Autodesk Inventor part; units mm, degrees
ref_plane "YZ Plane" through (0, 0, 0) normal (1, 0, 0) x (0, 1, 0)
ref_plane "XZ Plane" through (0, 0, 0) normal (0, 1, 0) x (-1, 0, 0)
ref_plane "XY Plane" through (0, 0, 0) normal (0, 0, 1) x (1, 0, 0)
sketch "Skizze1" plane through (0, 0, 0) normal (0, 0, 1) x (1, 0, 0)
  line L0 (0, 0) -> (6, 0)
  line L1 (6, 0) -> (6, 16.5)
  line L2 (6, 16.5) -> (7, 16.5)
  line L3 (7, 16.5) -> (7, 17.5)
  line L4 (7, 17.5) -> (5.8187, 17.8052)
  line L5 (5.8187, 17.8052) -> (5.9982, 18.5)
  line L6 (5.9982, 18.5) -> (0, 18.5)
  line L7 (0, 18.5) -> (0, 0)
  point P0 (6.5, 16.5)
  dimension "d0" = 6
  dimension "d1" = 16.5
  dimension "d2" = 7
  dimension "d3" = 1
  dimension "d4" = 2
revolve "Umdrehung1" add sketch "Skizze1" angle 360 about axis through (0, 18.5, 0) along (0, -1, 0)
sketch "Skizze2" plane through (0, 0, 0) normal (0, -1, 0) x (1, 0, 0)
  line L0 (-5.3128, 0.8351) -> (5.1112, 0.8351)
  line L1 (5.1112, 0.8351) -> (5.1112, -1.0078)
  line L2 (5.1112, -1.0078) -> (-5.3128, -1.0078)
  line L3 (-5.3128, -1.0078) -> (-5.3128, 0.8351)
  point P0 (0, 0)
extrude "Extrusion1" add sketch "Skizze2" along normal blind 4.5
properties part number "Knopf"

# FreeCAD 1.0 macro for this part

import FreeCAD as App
import Part
import Sketcher

doc = App.newDocument("Part")
body = doc.addObject("PartDesign::Body", "Body")

sketch1 = doc.addObject("Sketcher::SketchObject", "Sketch")
body.addObject(sketch1)
sketch1.AttachmentSupport = (doc.XY_Plane, [""])
sketch1.MapMode = "FlatFace"
sketch1.addGeometry(Part.LineSegment(App.Vector(0, 18.5, 0), App.Vector(0, 0, 0)), False)
sketch1.addGeometry(Part.LineSegment(App.Vector(0, 0, 0), App.Vector(6, 0, 0)), False)
sketch1.addGeometry(Part.LineSegment(App.Vector(6, 0, 0), App.Vector(6, 16.5, 0)), False)
sketch1.addGeometry(Part.LineSegment(App.Vector(6, 16.5, 0), App.Vector(7, 16.5, 0)), False)
sketch1.addGeometry(Part.LineSegment(App.Vector(7, 16.5, 0), App.Vector(7, 17.5, 0)), False)
sketch1.addGeometry(Part.LineSegment(App.Vector(7, 17.5, 0), App.Vector(5.8187, 17.8052, 0)), False)
sketch1.addGeometry(Part.LineSegment(App.Vector(5.8187, 17.8052, 0), App.Vector(5.9982, 18.5, 0)), False)
sketch1.addGeometry(Part.LineSegment(App.Vector(5.9982, 18.5, 0), App.Vector(0, 18.5, 0)), False)
sketch1.addConstraint(Sketcher.Constraint("Coincident", 0, 2, 1, 1))
sketch1.addConstraint(Sketcher.Constraint("Coincident", 1, 2, 2, 1))
sketch1.addConstraint(Sketcher.Constraint("Coincident", 2, 2, 3, 1))
sketch1.addConstraint(Sketcher.Constraint("Coincident", 3, 2, 4, 1))
sketch1.addConstraint(Sketcher.Constraint("Coincident", 4, 2, 5, 1))
sketch1.addConstraint(Sketcher.Constraint("Coincident", 5, 2, 6, 1))
sketch1.addConstraint(Sketcher.Constraint("Coincident", 6, 2, 7, 1))
sketch1.addConstraint(Sketcher.Constraint("Coincident", 7, 2, 0, 1))
sketch1.addConstraint(Sketcher.Constraint("Vertical", 0))
sketch1.addConstraint(Sketcher.Constraint("Horizontal", 1))
sketch1.addConstraint(Sketcher.Constraint("Vertical", 2))
sketch1.addConstraint(Sketcher.Constraint("Horizontal", 3))
sketch1.addConstraint(Sketcher.Constraint("Vertical", 4))
sketch1.addConstraint(Sketcher.Constraint("Horizontal", 7))
sketch1.addConstraint(Sketcher.Constraint("Coincident", 0, 2, -1, 1))
sketch1.addConstraint(Sketcher.Constraint("Perpendicular", 5, 6))
sketch1.addConstraint(Sketcher.Constraint("Equal", 3, 4))
sketch1.addConstraint(Sketcher.Constraint("DistanceX", 1, 1, 1, 2, 6.0))
sketch1.addConstraint(Sketcher.Constraint("DistanceX", 3, 1, 3, 2, 1.0))
sketch1.addConstraint(Sketcher.Constraint("DistanceY", 2, 1, 2, 2, 16.5))
sketch1.addConstraint(Sketcher.Constraint("DistanceY", 4, 2, 6, 2, 1.0))
sketch1.addConstraint(Sketcher.Constraint("Distance", 5, 1.22))
sketch1.addConstraint(Sketcher.Constraint("DistanceX", 7, 2, 7, 1, 5.9982))
revolution = doc.addObject("PartDesign::Revolution", "Revolution")
body.addObject(revolution)
revolution.Profile = sketch1
revolution.ReferenceAxis = (sketch1, ["V_Axis"])
revolution.Angle = 360

sketch2 = doc.addObject("Sketcher::SketchObject", "Sketch001")
body.addObject(sketch2)
sketch2.AttachmentSupport = (doc.XZ_Plane, [""])
sketch2.MapMode = "FlatFace"
sketch2.addGeometry(Part.LineSegment(App.Vector(5.1112, 0.8351, 0), App.Vector(-5.3128, 0.8351, 0)), False)
sketch2.addGeometry(Part.LineSegment(App.Vector(-5.3128, 0.8351, 0), App.Vector(-5.3128, -1.0078, 0)), False)
sketch2.addGeometry(Part.LineSegment(App.Vector(-5.3128, -1.0078, 0), App.Vector(5.1112, -1.0078, 0)), False)
sketch2.addGeometry(Part.LineSegment(App.Vector(5.1112, -1.0078, 0), App.Vector(5.1112, 0.8351, 0)), False)
sketch2.addConstraint(Sketcher.Constraint("Coincident", 0, 2, 1, 1))
sketch2.addConstraint(Sketcher.Constraint("Coincident", 1, 2, 2, 1))
sketch2.addConstraint(Sketcher.Constraint("Coincident", 2, 2, 3, 1))
sketch2.addConstraint(Sketcher.Constraint("Coincident", 3, 2, 0, 1))
sketch2.addConstraint(Sketcher.Constraint("Horizontal", 0))
sketch2.addConstraint(Sketcher.Constraint("Vertical", 1))
sketch2.addConstraint(Sketcher.Constraint("Horizontal", 2))
sketch2.addConstraint(Sketcher.Constraint("Vertical", 3))
sketch2.addConstraint(Sketcher.Constraint("DistanceX", 0, 2, 0, 1, 10.424))
sketch2.addConstraint(Sketcher.Constraint("DistanceY", 1, 2, 1, 1, 1.843))
sketch2.addConstraint(Sketcher.Constraint("DistanceY", -1, 1, 0, 2, 0.835))
sketch2.addConstraint(Sketcher.Constraint("DistanceX", 0, 2, -1, 1, 5.3128))
pad1 = doc.addObject("PartDesign::Pad", "Pad")
body.addObject(pad1)
pad1.Profile = sketch2
pad1.Length = 4.5

doc.recompute()
